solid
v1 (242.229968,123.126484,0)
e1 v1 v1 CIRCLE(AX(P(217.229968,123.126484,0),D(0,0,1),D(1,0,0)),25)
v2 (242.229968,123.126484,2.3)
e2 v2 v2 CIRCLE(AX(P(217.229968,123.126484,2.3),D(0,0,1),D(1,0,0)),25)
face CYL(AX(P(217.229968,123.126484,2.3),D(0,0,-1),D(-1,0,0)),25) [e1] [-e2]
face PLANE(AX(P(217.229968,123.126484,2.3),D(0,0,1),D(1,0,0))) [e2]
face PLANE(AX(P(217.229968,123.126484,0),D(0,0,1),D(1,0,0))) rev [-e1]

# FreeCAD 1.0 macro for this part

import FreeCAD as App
import Part
import Sketcher

V = App.Vector
Q = App.Units.Quantity

doc = App.newDocument("Part")
params = doc.addObject("Spreadsheet::Sheet", "Params")
for row, (alias, value) in enumerate([
    ("sketch1_diameter", "50 mm"),
    ("pad1_length", "2.3 mm"),
], start=1):
    params.set(f"A{row}", alias)
    params.set(f"B{row}", "=" + value)
    params.setAlias(f"B{row}", alias)

body = doc.addObject("PartDesign::Body", "Body")

# Sketch on XY plane
sketch1 = doc.addObject("Sketcher::SketchObject", "Sketch")
body.addObject(sketch1)
sketch1.AttachmentSupport = (doc.XY_Plane, [""])
sketch1.MapMode = "FlatFace"
sketch1.addGeometry(Part.Circle(V(217.229968, 123.126484, 0), V(0, 0, 1), 25), False)
sketch1.addConstraint(Sketcher.Constraint("Diameter", 0, Q("50 mm")))
sketch1.addConstraint(Sketcher.Constraint("DistanceX", -1, 1, 0, 3, Q("217.229968 mm")))
sketch1.addConstraint(Sketcher.Constraint("DistanceY", -1, 1, 0, 3, Q("123.126484 mm")))
sketch1.setExpression("Constraints[0]", "Params.sketch1_diameter")
pad1 = doc.addObject("PartDesign::Pad", "Pad")
body.addObject(pad1)
pad1.Profile = sketch1
pad1.setExpression("Length", "Params.pad1_length")

doc.recompute()
